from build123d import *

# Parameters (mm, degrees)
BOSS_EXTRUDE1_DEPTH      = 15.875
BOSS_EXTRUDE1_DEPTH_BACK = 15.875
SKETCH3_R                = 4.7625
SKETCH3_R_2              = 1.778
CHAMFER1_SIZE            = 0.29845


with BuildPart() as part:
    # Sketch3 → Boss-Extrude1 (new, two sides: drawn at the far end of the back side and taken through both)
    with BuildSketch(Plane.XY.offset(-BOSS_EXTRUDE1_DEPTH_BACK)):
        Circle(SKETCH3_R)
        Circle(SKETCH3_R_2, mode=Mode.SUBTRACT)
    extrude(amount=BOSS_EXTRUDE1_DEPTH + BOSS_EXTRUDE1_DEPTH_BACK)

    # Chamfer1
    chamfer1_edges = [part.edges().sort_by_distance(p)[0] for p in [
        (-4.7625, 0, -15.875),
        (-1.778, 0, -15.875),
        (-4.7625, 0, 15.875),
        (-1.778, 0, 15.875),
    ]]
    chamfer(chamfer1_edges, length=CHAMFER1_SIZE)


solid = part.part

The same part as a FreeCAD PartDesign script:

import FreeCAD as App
import Part
import Sketcher

V = App.Vector
Q = App.Units.Quantity


def edges_at(feature, points):
    """Names of the edges that pass closest to the given points."""
    edges = feature.Shape.Edges
    near = lambda p: min(range(len(edges)), key=lambda i: edges[i].distToShape(Part.Vertex(*p))[0])
    return sorted({f"Edge{near(p) + 1}" for p in points})

doc = App.newDocument("Part")
params = doc.addObject("Spreadsheet::Sheet", "Params")
for row, (alias, value) in enumerate([
    ("sketch1_diameter", "0.14 in"),
    ("sketch1_diameter2", "0.375 in"),
    ("pad1_length", "0.625 in"),
    ("pad1_length2", "0.625 in"),
    ("chamfer_size", "0.29845 mm"),
], start=1):
    params.set(f"A{row}", alias)
    params.set(f"B{row}", "=" + value)
    params.setAlias(f"B{row}", alias)

body = doc.addObject("PartDesign::Body", "Body")

sketch1 = doc.addObject("Sketcher::SketchObject", "Sketch")
body.addObject(sketch1)
sketch1.AttachmentSupport = (doc.XY_Plane, [""])
sketch1.MapMode = "FlatFace"
sketch1.addGeometry(Part.Circle(V(0, 0, 0), V(0, 0, 1), 4.8), False)
sketch1.addGeometry(Part.Circle(V(0, 0, 0), V(0, 0, 1), 1.8), False)
sketch1.addConstraint(Sketcher.Constraint("Coincident", 0, 3, -1, 1))
sketch1.addConstraint(Sketcher.Constraint("Coincident", 1, 3, -1, 1))
sketch1.addConstraint(Sketcher.Constraint("Diameter", 1, Q("0.14 in")))
sketch1.addConstraint(Sketcher.Constraint("Diameter", 0, Q("0.375 in")))
sketch1.setExpression("Constraints[2]", "Params.sketch1_diameter")
sketch1.setExpression("Constraints[3]", "Params.sketch1_diameter2")
pad1 = doc.addObject("PartDesign::Pad", "Pad")
body.addObject(pad1)
pad1.Profile = sketch1
pad1.Type = "TwoLengths"
pad1.setExpression("Length", "Params.pad1_length")
pad1.setExpression("Length2", "Params.pad1_length2")
doc.recompute()

chamfer = doc.addObject("PartDesign::Chamfer", "Chamfer")
body.addObject(chamfer)
chamfer.Base = (pad1, edges_at(pad1, [
    (-4.763, 0, -15.875),
    (-1.778, 0, -15.875),
    (-4.763, 0, 15.875),
    (-1.778, 0, 15.875),
]))
chamfer.setExpression("Size", "Params.chamfer_size")

doc.recompute()
